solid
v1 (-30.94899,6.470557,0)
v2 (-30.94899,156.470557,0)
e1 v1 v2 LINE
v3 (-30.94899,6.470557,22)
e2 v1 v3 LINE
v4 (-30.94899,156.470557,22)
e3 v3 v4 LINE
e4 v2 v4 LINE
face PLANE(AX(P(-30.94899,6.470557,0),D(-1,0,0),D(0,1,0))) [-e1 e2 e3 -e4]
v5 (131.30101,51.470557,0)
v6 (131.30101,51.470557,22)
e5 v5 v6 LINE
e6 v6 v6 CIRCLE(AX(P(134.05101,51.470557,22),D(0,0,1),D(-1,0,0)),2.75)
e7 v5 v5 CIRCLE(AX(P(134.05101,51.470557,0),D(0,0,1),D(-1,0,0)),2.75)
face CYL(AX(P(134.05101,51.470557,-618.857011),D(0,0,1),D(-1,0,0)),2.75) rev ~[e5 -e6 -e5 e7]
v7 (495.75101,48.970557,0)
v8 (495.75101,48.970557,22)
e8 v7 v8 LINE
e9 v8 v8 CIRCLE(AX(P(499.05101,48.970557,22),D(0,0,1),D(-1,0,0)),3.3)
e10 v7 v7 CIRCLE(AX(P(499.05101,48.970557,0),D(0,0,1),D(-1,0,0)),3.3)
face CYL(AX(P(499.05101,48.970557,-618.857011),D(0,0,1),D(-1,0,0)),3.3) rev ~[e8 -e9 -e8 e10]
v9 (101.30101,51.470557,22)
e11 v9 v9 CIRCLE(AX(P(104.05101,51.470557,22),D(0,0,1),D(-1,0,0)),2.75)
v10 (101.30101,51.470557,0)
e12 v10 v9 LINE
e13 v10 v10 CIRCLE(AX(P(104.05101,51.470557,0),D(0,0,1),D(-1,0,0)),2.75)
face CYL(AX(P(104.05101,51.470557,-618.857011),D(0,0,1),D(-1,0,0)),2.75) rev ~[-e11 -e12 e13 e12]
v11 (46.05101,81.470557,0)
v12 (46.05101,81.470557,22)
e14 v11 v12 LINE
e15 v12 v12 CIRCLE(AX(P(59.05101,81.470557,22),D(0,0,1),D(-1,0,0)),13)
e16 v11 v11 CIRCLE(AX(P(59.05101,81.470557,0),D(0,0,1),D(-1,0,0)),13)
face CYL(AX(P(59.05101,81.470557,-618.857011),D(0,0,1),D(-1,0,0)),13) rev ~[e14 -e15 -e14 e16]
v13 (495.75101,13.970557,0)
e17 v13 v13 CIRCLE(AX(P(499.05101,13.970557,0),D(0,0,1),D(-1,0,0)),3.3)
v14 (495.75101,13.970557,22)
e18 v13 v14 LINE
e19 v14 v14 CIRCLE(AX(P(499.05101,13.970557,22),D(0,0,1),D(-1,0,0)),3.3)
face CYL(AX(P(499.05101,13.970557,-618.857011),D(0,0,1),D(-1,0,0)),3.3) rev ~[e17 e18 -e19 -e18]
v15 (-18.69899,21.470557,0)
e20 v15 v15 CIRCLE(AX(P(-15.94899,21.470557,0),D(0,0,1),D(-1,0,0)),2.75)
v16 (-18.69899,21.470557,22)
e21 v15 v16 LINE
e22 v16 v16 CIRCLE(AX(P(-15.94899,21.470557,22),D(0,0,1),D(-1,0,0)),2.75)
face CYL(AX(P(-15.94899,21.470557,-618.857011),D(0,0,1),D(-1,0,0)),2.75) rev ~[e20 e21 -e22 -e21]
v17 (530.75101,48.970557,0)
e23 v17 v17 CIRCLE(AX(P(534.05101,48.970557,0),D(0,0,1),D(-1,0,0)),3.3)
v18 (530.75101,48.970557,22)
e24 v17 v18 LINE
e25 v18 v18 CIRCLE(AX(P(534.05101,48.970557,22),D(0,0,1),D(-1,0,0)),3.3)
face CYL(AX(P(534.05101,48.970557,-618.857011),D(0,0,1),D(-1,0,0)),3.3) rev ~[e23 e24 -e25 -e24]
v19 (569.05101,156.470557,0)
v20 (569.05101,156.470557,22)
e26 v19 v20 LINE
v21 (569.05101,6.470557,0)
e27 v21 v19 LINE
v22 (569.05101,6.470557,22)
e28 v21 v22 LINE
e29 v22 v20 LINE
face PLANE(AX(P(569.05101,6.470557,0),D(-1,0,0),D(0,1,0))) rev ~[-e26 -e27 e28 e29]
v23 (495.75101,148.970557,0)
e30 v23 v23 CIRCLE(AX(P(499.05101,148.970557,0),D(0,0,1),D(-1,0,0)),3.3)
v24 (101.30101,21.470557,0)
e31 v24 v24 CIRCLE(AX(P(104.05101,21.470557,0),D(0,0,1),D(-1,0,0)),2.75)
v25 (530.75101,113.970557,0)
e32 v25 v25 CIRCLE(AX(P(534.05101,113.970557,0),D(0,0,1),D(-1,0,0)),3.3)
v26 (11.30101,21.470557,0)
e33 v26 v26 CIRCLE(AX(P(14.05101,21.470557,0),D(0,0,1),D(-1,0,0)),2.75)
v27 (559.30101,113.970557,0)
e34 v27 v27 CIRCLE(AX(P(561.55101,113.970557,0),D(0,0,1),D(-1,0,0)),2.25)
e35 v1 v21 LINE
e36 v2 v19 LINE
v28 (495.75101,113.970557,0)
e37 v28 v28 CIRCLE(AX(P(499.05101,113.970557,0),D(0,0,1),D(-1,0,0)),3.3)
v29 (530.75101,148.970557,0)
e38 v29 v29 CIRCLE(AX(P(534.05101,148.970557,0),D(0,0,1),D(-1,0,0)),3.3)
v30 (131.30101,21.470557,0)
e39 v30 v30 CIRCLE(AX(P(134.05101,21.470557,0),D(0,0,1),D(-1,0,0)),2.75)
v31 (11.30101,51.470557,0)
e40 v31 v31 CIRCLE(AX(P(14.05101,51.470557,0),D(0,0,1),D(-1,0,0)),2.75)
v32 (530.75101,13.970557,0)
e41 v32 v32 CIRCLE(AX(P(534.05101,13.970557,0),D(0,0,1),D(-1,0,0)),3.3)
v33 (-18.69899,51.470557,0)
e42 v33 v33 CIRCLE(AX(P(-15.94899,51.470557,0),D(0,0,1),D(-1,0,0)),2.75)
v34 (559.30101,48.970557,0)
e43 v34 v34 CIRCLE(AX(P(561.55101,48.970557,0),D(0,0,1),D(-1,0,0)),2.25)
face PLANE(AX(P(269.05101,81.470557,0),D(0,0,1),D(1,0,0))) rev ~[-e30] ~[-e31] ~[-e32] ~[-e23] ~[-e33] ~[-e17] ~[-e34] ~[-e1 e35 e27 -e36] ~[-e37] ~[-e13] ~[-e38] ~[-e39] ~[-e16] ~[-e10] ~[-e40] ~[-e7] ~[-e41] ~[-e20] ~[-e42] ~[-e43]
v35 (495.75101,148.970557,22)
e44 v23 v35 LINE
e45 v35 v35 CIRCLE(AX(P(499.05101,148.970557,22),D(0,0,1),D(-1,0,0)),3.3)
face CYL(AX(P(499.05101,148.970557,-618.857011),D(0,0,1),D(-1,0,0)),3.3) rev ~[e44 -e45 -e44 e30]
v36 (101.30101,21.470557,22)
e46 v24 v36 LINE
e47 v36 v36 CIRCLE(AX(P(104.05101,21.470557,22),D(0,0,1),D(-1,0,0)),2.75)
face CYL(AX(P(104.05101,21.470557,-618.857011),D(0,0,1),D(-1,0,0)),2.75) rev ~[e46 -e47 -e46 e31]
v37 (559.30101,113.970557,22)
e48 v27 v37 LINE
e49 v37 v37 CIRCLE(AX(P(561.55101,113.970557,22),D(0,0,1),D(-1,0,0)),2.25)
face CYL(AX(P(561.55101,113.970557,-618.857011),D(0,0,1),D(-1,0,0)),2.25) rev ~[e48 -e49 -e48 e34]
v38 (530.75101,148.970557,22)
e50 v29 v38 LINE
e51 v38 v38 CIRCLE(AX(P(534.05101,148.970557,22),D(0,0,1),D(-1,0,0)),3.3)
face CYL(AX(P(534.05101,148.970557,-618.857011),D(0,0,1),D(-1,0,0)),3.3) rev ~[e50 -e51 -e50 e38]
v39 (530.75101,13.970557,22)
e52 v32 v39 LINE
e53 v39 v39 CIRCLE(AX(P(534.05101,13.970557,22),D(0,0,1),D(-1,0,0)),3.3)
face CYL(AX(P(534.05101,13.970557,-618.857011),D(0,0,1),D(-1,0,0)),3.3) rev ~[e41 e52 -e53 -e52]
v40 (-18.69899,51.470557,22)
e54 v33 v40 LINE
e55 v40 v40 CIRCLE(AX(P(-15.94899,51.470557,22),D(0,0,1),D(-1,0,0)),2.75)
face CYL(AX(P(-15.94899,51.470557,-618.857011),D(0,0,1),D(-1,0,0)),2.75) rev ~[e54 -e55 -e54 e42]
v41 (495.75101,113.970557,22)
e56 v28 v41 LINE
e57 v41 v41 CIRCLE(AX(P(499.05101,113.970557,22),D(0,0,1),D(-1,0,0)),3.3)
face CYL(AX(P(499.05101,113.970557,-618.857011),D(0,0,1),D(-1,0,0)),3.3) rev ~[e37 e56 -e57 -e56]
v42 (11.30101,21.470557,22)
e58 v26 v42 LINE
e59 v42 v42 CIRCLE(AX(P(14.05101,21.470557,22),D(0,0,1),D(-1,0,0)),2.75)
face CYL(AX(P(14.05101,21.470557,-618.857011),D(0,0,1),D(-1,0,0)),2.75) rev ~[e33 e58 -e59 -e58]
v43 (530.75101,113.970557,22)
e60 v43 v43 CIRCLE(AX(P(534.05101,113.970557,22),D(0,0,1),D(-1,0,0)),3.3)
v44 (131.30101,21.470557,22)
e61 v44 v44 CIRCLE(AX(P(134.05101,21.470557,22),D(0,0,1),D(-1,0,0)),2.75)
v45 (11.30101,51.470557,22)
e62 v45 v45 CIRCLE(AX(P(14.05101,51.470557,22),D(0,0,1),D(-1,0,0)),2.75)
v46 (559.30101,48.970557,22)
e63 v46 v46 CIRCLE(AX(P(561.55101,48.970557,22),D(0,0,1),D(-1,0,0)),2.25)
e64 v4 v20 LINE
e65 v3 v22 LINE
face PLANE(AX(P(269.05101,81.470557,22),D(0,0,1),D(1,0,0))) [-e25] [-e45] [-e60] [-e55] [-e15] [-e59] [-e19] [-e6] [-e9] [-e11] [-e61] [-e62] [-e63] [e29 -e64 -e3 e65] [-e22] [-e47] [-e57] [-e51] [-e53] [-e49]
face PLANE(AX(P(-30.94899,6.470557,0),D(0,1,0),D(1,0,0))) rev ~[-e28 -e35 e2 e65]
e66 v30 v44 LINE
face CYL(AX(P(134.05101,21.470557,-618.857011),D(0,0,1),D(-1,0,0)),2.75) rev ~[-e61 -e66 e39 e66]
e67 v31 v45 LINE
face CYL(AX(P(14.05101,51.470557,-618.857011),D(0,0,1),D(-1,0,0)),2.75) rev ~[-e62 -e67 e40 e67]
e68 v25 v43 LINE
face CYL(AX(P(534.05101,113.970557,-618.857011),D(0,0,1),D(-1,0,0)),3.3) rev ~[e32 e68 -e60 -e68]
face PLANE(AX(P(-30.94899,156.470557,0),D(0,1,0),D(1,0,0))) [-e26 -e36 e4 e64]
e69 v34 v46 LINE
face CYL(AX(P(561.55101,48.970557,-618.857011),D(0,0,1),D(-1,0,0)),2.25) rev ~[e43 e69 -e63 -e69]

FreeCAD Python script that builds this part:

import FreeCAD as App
import Part
import Sketcher
from FreeCAD import Vector
Q = App.Units.Quantity

doc = App.newDocument("Part")
body = doc.addObject("PartDesign::Body", "Body")

# Sketch on XY plane
sketch1 = body.newObject("Sketcher::SketchObject", "Sketch")
sketch1.AttachmentSupport = (doc.getObject("XY_Plane"), [""])
sketch1.MapMode = "FlatFace"
sketch1.addGeometry(Part.LineSegment(Vector(-30.94899, 156.470557, 0), Vector(-30.94899, 6.470557, 0)), False)
sketch1.addGeometry(Part.LineSegment(Vector(-30.94899, 6.470557, 0), Vector(569.05101, 6.470557, 0)), False)
sketch1.addGeometry(Part.LineSegment(Vector(569.05101, 6.470557, 0), Vector(569.05101, 156.470557, 0)), False)
sketch1.addGeometry(Part.LineSegment(Vector(569.05101, 156.470557, 0), Vector(-30.94899, 156.470557, 0)), False)
sketch1.addConstraint(Sketcher.Constraint("Coincident", 0, 2, 1, 1))
sketch1.addConstraint(Sketcher.Constraint("Coincident", 1, 2, 2, 1))
sketch1.addConstraint(Sketcher.Constraint("Coincident", 2, 2, 3, 1))
sketch1.addConstraint(Sketcher.Constraint("Coincident", 3, 2, 0, 1))
sketch1.addConstraint(Sketcher.Constraint("Vertical", 0))
sketch1.addConstraint(Sketcher.Constraint("Horizontal", 1))
sketch1.addConstraint(Sketcher.Constraint("Vertical", 2))
sketch1.addConstraint(Sketcher.Constraint("Horizontal", 3))
sketch1.addConstraint(Sketcher.Constraint("DistanceX", 1, 1, 1, 2, Q("600 mm")))
sketch1.addConstraint(Sketcher.Constraint("DistanceY", 0, 2, 0, 1, Q("150 mm")))
sketch1.addConstraint(Sketcher.Constraint("DistanceX", 0, 2, -1, 1, Q("30.94899 mm")))
sketch1.addConstraint(Sketcher.Constraint("DistanceY", -1, 1, 0, 2, Q("6.470557 mm")))
pad1 = body.newObject("PartDesign::Pad", "Pad")
pad1.Profile = sketch1
pad1.Length = 22

# Sketch on XY plane
sketch2 = body.newObject("Sketcher::SketchObject", "Sketch001")
sketch2.AttachmentSupport = (doc.getObject("XY_Plane"), [""])
sketch2.MapMode = "FlatFace"
sketch2.addGeometry(Part.Circle(Vector(499.05101, 113.970557, 0), Vector(0, 0, 1), 3.3), False)
sketch2.addGeometry(Part.Circle(Vector(534.05101, 113.970557, 0), Vector(0, 0, 1), 3.3), False)
sketch2.addGeometry(Part.Circle(Vector(499.05101, 148.970557, 0), Vector(0, 0, 1), 3.3), False)
sketch2.addGeometry(Part.Circle(Vector(534.05101, 148.970557, 0), Vector(0, 0, 1), 3.3), False)
sketch2.addGeometry(Part.Circle(Vector(534.05101, 13.970557, 0), Vector(0, 0, 1), 3.3), False)
sketch2.addGeometry(Part.Circle(Vector(499.05101, 48.970557, 0), Vector(0, 0, 1), 3.3), False)
sketch2.addGeometry(Part.Circle(Vector(499.05101, 13.970557, 0), Vector(0, 0, 1), 3.3), False)
sketch2.addGeometry(Part.Circle(Vector(534.05101, 48.970557, 0), Vector(0, 0, 1), 3.3), False)
sketch2.addConstraint(Sketcher.Constraint("Equal", 0, 1))
sketch2.addConstraint(Sketcher.Constraint("Equal", 1, 2))
sketch2.addConstraint(Sketcher.Constraint("Equal", 2, 3))
sketch2.addConstraint(Sketcher.Constraint("Equal", 3, 4))
sketch2.addConstraint(Sketcher.Constraint("Equal", 4, 5))
sketch2.addConstraint(Sketcher.Constraint("Equal", 5, 6))
sketch2.addConstraint(Sketcher.Constraint("Equal", 6, 7))
sketch2.addConstraint(Sketcher.Constraint("Horizontal", 0, 3, 1, 3))
sketch2.addConstraint(Sketcher.Constraint("Horizontal", 2, 3, 3, 3))
sketch2.addConstraint(Sketcher.Constraint("Horizontal", 4, 3, 6, 3))
sketch2.addConstraint(Sketcher.Constraint("Horizontal", 5, 3, 7, 3))
sketch2.addConstraint(Sketcher.Constraint("Vertical", 0, 3, 2, 3))
sketch2.addConstraint(Sketcher.Constraint("Vertical", 1, 3, 3, 3))
sketch2.addConstraint(Sketcher.Constraint("Vertical", 3, 3, 4, 3))
sketch2.addConstraint(Sketcher.Constraint("Vertical", 2, 3, 5, 3))
sketch2.addConstraint(Sketcher.Constraint("Vertical", 5, 3, 6, 3))
sketch2.addConstraint(Sketcher.Constraint("Vertical", 4, 3, 7, 3))
sketch2.addConstraint(Sketcher.Constraint("Diameter", 0, Q("6.6 mm")))
sketch2.addConstraint(Sketcher.Constraint("DistanceX", 0, 3, 1, 3, Q("35 mm")))
sketch2.addConstraint(Sketcher.Constraint("DistanceY", 0, 3, 2, 3, Q("35 mm")))
sketch2.addConstraint(Sketcher.Constraint("DistanceY", 4, 3, 1, 3, Q("100 mm")))
sketch2.addConstraint(Sketcher.Constraint("DistanceY", 4, 3, 5, 3, Q("35 mm")))
sketch2.addConstraint(Sketcher.Constraint("DistanceX", -1, 1, 0, 3, Q("499.05101 mm")))
sketch2.addConstraint(Sketcher.Constraint("DistanceY", -1, 1, 0, 3, Q("113.970557 mm")))
doc.recompute()
hole = body.newObject("PartDesign::Hole", "Hole")
hole.Profile = sketch2
hole.ThreadType = "None"
hole.Diameter = 6.6
hole.DepthType = "ThroughAll"
hole.Reversed = True

# Sketch on XY plane
sketch3 = body.newObject("Sketcher::SketchObject", "Sketch002")
sketch3.AttachmentSupport = (doc.getObject("XY_Plane"), [""])
sketch3.MapMode = "FlatFace"
sketch3.addGeometry(Part.Circle(Vector(-15.94899, 21.470557, 0), Vector(0, 0, 1), 2.75), False)
sketch3.addGeometry(Part.Circle(Vector(14.05101, 21.470557, 0), Vector(0, 0, 1), 2.75), False)
sketch3.addGeometry(Part.Circle(Vector(104.05101, 51.470557, 0), Vector(0, 0, 1), 2.75), False)
sketch3.addGeometry(Part.Circle(Vector(104.05101, 21.470557, 0), Vector(0, 0, 1), 2.75), False)
sketch3.addGeometry(Part.Circle(Vector(14.05101, 51.470557, 0), Vector(0, 0, 1), 2.75), False)
sketch3.addGeometry(Part.Circle(Vector(134.05101, 51.470557, 0), Vector(0, 0, 1), 2.75), False)
sketch3.addGeometry(Part.Circle(Vector(134.05101, 21.470557, 0), Vector(0, 0, 1), 2.75), False)
sketch3.addGeometry(Part.Circle(Vector(-15.94899, 51.470557, 0), Vector(0, 0, 1), 2.75), False)
sketch3.addConstraint(Sketcher.Constraint("Equal", 0, 1))
sketch3.addConstraint(Sketcher.Constraint("Equal", 1, 2))
sketch3.addConstraint(Sketcher.Constraint("Equal", 2, 3))
sketch3.addConstraint(Sketcher.Constraint("Equal", 3, 4))
sketch3.addConstraint(Sketcher.Constraint("Equal", 4, 5))
sketch3.addConstraint(Sketcher.Constraint("Equal", 5, 6))
sketch3.addConstraint(Sketcher.Constraint("Equal", 6, 7))
sketch3.addConstraint(Sketcher.Constraint("Horizontal", 0, 3, 1, 3))
sketch3.addConstraint(Sketcher.Constraint("Horizontal", 1, 3, 3, 3))
sketch3.addConstraint(Sketcher.Constraint("Horizontal", 2, 3, 4, 3))
sketch3.addConstraint(Sketcher.Constraint("Horizontal", 4, 3, 5, 3))
sketch3.addConstraint(Sketcher.Constraint("Horizontal", 3, 3, 6, 3))
sketch3.addConstraint(Sketcher.Constraint("Horizontal", 5, 3, 7, 3))
sketch3.addConstraint(Sketcher.Constraint("Vertical", 2, 3, 3, 3))
sketch3.addConstraint(Sketcher.Constraint("Vertical", 1, 3, 4, 3))
sketch3.addConstraint(Sketcher.Constraint("Vertical", 5, 3, 6, 3))
sketch3.addConstraint(Sketcher.Constraint("Vertical", 0, 3, 7, 3))
sketch3.addConstraint(Sketcher.Constraint("Diameter", 0, Q("5.5 mm")))
sketch3.addConstraint(Sketcher.Constraint("DistanceX", 0, 3, 1, 3, Q("30 mm")))
sketch3.addConstraint(Sketcher.Constraint("DistanceX", 1, 3, 2, 3, Q("90 mm")))
sketch3.addConstraint(Sketcher.Constraint("DistanceY", 1, 3, 2, 3, Q("30 mm")))
sketch3.addConstraint(Sketcher.Constraint("DistanceX", 2, 3, 5, 3, Q("30 mm")))
sketch3.addConstraint(Sketcher.Constraint("DistanceX", 0, 3, -1, 1, Q("15.94899 mm")))
sketch3.addConstraint(Sketcher.Constraint("DistanceY", -1, 1, 0, 3, Q("21.470557 mm")))
doc.recompute()
hole2 = body.newObject("PartDesign::Hole", "Hole001")
hole2.Profile = sketch3
hole2.ThreadType = "None"
hole2.Diameter = 5.5
hole2.DepthType = "ThroughAll"
hole2.Reversed = True

# Sketch on XY plane
sketch4 = body.newObject("Sketcher::SketchObject", "Sketch003")
sketch4.AttachmentSupport = (doc.getObject("XY_Plane"), [""])
sketch4.MapMode = "FlatFace"
sketch4.addGeometry(Part.Circle(Vector(59.05101, 81.470557, 0), Vector(0, 0, 1), 13), False)
sketch4.addConstraint(Sketcher.Constraint("Diameter", 0, Q("26 mm")))
sketch4.addConstraint(Sketcher.Constraint("DistanceX", -1, 1, 0, 3, Q("59.05101 mm")))
sketch4.addConstraint(Sketcher.Constraint("DistanceY", -1, 1, 0, 3, Q("81.470557 mm")))
doc.recompute()
hole3 = body.newObject("PartDesign::Hole", "Hole002")
hole3.Profile = sketch4
hole3.ThreadType = "None"
hole3.Diameter = 26
hole3.DepthType = "ThroughAll"
hole3.Reversed = True

# Sketch on XY plane
sketch5 = body.newObject("Sketcher::SketchObject", "Sketch004")
sketch5.AttachmentSupport = (doc.getObject("XY_Plane"), [""])
sketch5.MapMode = "FlatFace"
sketch5.addGeometry(Part.Circle(Vector(561.55101, 113.970557, 0), Vector(0, 0, 1), 2.25), False)
sketch5.addGeometry(Part.Circle(Vector(561.55101, 48.970557, 0), Vector(0, 0, 1), 2.25), False)
sketch5.addConstraint(Sketcher.Constraint("Equal", 0, 1))
sketch5.addConstraint(Sketcher.Constraint("Vertical", 0, 3, 1, 3))
sketch5.addConstraint(Sketcher.Constraint("Diameter", 0, Q("4.5 mm")))
sketch5.addConstraint(Sketcher.Constraint("DistanceY", 1, 3, 0, 3, Q("65 mm")))
sketch5.addConstraint(Sketcher.Constraint("DistanceX", -1, 1, 0, 3, Q("561.55101 mm")))
sketch5.addConstraint(Sketcher.Constraint("DistanceY", -1, 1, 0, 3, Q("113.970557 mm")))
doc.recompute()
hole4 = body.newObject("PartDesign::Hole", "Hole003")
hole4.Profile = sketch5
hole4.ThreadType = "None"
hole4.Diameter = 4.5
hole4.DepthType = "ThroughAll"
hole4.Reversed = True

doc.recompute()
